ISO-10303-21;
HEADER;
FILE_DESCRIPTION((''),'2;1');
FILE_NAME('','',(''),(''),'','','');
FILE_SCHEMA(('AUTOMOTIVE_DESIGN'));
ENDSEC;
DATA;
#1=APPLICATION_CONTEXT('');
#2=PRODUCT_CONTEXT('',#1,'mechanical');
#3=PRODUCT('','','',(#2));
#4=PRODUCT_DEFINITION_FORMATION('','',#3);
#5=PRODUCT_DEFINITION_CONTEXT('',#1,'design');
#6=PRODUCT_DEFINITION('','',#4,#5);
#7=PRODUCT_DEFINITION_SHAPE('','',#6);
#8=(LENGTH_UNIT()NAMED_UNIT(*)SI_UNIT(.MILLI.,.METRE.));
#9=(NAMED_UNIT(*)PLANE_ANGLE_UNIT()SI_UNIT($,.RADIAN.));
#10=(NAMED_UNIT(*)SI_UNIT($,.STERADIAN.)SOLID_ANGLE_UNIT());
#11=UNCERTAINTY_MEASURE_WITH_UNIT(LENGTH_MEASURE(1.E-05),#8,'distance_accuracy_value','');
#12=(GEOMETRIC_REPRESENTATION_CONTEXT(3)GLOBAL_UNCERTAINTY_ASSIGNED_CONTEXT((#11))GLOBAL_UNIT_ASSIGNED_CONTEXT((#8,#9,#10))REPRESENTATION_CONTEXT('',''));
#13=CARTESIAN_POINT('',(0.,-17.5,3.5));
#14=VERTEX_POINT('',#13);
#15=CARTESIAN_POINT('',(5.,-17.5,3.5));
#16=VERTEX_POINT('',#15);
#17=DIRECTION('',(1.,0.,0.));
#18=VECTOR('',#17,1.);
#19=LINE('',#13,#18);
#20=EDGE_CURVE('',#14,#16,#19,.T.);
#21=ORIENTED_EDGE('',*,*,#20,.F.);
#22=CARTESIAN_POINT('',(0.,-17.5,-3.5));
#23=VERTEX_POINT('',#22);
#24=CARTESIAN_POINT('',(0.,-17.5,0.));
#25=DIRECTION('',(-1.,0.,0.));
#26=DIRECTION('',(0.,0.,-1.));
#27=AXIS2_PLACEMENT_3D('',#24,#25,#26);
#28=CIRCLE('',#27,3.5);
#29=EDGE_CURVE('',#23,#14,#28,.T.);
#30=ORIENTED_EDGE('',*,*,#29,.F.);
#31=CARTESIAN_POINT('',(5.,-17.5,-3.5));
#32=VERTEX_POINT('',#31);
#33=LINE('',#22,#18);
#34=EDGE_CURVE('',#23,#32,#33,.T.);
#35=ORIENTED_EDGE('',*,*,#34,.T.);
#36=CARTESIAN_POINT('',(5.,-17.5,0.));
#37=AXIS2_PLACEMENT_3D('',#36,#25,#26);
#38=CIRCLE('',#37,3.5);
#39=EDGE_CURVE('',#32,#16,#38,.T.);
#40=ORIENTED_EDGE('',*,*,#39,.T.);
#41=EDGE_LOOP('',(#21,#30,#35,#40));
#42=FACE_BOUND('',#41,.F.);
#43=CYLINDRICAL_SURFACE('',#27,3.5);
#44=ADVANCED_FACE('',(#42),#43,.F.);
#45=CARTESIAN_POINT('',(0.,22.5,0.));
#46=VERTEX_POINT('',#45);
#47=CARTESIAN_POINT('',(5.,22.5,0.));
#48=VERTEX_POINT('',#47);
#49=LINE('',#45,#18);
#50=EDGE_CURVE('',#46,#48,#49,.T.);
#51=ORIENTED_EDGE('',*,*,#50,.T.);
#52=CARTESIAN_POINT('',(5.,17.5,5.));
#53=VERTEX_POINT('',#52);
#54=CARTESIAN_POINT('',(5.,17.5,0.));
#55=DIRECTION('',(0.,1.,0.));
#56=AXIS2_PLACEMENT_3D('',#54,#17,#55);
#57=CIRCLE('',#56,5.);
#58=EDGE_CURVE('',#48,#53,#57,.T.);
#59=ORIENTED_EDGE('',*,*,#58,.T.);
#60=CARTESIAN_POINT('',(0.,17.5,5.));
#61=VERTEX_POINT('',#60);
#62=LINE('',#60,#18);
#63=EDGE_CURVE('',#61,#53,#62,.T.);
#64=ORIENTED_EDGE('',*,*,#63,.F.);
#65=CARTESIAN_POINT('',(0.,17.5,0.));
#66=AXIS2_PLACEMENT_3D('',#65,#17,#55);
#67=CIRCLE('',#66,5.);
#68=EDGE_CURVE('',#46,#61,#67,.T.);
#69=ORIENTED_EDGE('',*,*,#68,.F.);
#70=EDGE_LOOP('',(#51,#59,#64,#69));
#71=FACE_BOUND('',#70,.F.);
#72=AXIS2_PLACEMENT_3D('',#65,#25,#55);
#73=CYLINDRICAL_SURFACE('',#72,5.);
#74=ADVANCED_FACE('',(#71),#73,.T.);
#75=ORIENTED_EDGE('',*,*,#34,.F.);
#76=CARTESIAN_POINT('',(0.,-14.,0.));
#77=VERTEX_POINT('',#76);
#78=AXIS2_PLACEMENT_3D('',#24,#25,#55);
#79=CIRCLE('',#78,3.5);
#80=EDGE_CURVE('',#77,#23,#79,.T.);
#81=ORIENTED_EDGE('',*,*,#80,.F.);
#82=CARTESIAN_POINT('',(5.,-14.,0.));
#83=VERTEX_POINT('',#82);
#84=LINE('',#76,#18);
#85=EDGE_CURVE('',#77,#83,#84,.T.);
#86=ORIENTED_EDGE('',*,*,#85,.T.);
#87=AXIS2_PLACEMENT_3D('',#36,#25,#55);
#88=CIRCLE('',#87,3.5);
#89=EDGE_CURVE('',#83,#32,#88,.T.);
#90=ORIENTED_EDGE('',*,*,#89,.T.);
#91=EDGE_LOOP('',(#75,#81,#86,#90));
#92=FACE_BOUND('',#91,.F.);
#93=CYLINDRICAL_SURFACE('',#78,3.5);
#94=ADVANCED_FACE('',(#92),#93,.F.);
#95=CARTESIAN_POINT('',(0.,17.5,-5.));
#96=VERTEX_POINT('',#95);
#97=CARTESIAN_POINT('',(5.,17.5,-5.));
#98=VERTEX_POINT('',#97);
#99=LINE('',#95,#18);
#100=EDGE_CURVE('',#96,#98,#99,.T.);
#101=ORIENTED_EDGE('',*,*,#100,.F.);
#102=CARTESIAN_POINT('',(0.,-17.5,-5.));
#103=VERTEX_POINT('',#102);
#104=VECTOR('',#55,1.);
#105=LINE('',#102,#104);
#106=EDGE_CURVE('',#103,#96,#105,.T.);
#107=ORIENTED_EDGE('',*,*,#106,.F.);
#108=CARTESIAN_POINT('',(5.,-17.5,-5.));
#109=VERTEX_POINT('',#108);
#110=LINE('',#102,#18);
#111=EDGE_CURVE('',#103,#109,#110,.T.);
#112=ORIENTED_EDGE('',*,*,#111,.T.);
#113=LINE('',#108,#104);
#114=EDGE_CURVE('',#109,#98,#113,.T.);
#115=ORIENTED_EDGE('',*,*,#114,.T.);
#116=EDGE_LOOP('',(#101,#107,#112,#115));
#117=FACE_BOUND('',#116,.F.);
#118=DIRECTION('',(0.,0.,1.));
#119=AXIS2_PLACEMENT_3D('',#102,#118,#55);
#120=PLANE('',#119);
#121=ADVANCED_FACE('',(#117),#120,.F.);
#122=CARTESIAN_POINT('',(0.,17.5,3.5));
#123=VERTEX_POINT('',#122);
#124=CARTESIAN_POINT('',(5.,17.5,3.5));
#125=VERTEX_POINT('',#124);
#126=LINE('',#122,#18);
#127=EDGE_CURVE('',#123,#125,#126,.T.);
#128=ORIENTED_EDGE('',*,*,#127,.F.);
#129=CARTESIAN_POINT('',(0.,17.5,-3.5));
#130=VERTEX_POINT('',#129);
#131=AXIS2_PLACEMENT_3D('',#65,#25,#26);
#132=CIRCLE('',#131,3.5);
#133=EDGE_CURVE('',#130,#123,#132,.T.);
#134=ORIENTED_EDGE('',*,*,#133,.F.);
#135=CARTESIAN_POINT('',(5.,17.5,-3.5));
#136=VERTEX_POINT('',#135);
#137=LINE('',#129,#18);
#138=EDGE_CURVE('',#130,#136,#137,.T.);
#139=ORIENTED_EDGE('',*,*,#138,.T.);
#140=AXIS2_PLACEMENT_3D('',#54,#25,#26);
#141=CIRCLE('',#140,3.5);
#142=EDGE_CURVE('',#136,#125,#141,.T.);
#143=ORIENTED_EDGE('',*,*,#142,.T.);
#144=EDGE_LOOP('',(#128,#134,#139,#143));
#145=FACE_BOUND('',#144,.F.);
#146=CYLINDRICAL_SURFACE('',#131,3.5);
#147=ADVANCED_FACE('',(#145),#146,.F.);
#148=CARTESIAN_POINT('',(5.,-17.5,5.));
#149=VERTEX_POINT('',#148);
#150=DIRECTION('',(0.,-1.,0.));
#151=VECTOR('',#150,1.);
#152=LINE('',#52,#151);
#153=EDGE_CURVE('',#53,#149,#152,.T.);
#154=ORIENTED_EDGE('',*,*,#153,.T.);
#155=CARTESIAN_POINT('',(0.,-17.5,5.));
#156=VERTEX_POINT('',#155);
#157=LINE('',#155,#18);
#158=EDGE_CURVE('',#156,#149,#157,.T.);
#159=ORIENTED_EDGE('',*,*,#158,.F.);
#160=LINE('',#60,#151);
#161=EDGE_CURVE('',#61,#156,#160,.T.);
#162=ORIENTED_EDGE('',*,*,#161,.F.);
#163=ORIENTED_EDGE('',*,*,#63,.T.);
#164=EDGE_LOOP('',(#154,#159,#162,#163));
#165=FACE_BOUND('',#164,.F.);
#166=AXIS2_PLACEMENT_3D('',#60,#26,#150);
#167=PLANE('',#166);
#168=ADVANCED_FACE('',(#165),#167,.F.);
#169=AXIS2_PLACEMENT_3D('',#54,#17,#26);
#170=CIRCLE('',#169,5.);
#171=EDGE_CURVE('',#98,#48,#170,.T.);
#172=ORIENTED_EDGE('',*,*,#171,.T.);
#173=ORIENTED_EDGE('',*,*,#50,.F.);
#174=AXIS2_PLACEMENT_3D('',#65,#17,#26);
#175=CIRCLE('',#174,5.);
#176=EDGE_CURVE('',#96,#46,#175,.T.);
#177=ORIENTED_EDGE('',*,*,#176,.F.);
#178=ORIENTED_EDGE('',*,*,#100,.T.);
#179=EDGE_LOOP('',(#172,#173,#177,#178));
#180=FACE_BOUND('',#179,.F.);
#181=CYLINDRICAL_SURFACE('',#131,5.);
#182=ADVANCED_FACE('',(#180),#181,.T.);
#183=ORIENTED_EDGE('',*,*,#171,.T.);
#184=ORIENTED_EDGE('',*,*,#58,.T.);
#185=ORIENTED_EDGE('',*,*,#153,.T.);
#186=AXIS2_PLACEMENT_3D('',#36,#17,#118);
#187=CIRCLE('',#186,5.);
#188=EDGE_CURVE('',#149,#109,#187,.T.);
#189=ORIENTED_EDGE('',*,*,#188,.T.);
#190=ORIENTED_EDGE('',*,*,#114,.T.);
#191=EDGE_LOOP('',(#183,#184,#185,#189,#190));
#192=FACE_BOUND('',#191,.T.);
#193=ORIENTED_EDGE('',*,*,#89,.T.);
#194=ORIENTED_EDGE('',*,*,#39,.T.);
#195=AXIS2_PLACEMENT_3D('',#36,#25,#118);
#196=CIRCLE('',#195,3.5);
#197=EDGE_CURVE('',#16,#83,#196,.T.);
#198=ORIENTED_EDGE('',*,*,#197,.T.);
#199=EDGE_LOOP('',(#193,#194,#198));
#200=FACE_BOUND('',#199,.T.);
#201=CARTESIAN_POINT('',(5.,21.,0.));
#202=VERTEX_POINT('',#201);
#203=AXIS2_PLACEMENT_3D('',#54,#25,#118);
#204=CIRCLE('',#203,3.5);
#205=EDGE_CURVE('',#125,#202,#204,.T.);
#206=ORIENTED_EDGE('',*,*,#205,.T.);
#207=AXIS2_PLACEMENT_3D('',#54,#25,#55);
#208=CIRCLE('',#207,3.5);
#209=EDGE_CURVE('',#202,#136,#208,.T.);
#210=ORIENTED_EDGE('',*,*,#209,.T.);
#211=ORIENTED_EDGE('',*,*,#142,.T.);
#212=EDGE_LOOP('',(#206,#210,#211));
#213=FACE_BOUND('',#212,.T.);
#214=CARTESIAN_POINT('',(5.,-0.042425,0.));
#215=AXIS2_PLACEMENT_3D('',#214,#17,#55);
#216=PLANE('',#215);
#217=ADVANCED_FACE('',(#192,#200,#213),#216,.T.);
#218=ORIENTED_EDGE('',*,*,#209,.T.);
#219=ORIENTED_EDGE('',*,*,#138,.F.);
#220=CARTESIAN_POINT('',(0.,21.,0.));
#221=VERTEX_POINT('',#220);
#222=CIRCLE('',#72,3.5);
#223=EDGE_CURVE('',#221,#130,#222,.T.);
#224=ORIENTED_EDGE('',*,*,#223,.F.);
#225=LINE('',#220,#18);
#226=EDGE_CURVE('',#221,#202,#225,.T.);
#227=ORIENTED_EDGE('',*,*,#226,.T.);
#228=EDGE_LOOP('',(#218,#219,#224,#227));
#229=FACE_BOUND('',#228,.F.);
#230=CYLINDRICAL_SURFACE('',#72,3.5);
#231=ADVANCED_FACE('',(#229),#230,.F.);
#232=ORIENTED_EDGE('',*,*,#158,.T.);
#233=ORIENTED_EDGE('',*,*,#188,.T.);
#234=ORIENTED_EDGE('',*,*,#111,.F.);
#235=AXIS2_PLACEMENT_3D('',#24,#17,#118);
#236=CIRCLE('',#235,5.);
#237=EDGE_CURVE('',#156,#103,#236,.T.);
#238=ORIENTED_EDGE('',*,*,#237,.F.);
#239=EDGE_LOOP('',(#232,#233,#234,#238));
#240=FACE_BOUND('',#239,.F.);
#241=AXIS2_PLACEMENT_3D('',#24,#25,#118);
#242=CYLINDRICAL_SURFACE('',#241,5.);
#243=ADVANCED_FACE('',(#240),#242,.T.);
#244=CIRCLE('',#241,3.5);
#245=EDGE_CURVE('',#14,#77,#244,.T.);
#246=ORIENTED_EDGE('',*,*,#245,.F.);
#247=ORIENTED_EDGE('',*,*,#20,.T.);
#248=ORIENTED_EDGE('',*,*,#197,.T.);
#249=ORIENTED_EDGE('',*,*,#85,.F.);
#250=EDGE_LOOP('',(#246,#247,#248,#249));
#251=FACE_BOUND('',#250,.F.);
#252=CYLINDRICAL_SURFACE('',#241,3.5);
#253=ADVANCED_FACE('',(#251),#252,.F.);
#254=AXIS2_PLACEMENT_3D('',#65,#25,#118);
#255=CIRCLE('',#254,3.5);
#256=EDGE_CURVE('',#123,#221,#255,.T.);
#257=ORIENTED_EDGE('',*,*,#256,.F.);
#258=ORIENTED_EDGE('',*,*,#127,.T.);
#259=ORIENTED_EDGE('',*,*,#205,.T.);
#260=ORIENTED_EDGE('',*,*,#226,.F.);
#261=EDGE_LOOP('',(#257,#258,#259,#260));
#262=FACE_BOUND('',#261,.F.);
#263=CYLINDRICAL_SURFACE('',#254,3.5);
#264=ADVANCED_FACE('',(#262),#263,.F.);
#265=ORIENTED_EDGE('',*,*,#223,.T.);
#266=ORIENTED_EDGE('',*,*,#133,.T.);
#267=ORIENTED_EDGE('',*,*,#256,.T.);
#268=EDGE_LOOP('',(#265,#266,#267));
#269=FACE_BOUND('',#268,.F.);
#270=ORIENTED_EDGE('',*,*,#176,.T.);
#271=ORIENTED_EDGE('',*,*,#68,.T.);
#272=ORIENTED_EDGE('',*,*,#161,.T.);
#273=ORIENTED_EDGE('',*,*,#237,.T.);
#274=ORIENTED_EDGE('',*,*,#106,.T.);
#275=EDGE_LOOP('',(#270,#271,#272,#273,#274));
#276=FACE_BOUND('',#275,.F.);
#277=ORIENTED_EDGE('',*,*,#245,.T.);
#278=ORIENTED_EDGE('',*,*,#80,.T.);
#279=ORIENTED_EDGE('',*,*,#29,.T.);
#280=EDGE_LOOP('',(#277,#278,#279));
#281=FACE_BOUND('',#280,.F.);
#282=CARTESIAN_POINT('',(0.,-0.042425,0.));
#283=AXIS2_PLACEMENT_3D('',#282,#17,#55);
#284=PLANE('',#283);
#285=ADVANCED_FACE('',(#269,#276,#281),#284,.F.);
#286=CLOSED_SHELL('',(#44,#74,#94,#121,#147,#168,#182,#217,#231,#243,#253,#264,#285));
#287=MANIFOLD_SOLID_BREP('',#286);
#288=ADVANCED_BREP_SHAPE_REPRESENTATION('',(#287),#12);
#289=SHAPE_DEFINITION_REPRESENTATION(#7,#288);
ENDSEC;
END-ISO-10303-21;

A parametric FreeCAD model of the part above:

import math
import FreeCAD as App
import Part
import Sketcher

doc = App.newDocument("Part")
body = doc.addObject("PartDesign::Body", "Body")

# Sketch on YZ plane
sketch1 = body.newObject("Sketcher::SketchObject", "Sketch")
sketch1.AttachmentSupport = (doc.getObject("YZ_Plane"), [""])
sketch1.MapMode = "FlatFace"
sketch1.addGeometry([
    Part.LineSegment(App.Vector(17.5, 5, 0), App.Vector(-17.5, 5, 0)),  # 0
    Part.ArcOfCircle(Part.Circle(App.Vector(-17.5, 0, 0), App.Vector(0, 0, 1), 5), math.radians(90), math.radians(270)),  # 1
    Part.LineSegment(App.Vector(-17.5, -5, 0), App.Vector(17.5, -5, 0)),  # 2
    Part.ArcOfCircle(Part.Circle(App.Vector(17.5, 0, 0), App.Vector(0, 0, 1), 5), math.radians(-90), math.radians(0)),  # 3
    Part.ArcOfCircle(Part.Circle(App.Vector(17.5, 0, 0), App.Vector(0, 0, 1), 5), math.radians(0), math.radians(90)),  # 4
    Part.ArcOfCircle(Part.Circle(App.Vector(-17.5, 0, 0), App.Vector(0, 0, 1), 3.5), math.radians(0), math.radians(90)),  # 5
    Part.ArcOfCircle(Part.Circle(App.Vector(-17.5, 0, 0), App.Vector(0, 0, 1), 3.5), math.radians(-90), math.radians(0)),  # 6
    Part.ArcOfCircle(Part.Circle(App.Vector(-17.5, 0, 0), App.Vector(0, 0, 1), 3.5), math.radians(90), math.radians(270)),  # 7
    Part.ArcOfCircle(Part.Circle(App.Vector(17.5, 0, 0), App.Vector(0, 0, 1), 3.5), math.radians(90), math.radians(270)),  # 8
    Part.ArcOfCircle(Part.Circle(App.Vector(17.5, 0, 0), App.Vector(0, 0, 1), 3.5), math.radians(0), math.radians(90)),  # 9
    Part.ArcOfCircle(Part.Circle(App.Vector(17.5, 0, 0), App.Vector(0, 0, 1), 3.5), math.radians(-90), math.radians(0)),  # 10
], False)
sketch1.addConstraint([
    Sketcher.Constraint("Tangent", 0, 2, 1, 1),
    Sketcher.Constraint("Tangent", 1, 2, 2, 1),
    Sketcher.Constraint("Tangent", 2, 2, 3, 1),
    Sketcher.Constraint("Tangent", 3, 2, 4, 1),
    Sketcher.Constraint("Tangent", 4, 2, 0, 1),
    Sketcher.Constraint("Tangent", 5, 1, 6, 2),
    Sketcher.Constraint("Tangent", 6, 1, 7, 2),
    Sketcher.Constraint("Tangent", 7, 1, 5, 2),
    Sketcher.Constraint("Tangent", 8, 1, 9, 2),
    Sketcher.Constraint("Tangent", 9, 1, 10, 2),
    Sketcher.Constraint("Tangent", 10, 1, 8, 2),
    Sketcher.Constraint("Horizontal", 0),
    Sketcher.Constraint("Horizontal", 2),
    Sketcher.Constraint("Coincident", 5, 3, 1, 3),
    Sketcher.Constraint("Coincident", 8, 3, 3, 3),
    Sketcher.Constraint("Equal", 1, 3),
    Sketcher.Constraint("Equal", 7, 8),
    Sketcher.Constraint("Symmetric", 1, 3, 3, 3, -1, 1),
    Sketcher.Constraint("PointOnObject", 3, 2, -1),
    Sketcher.Constraint("PointOnObject", 5, 1, -1),
    Sketcher.Constraint("PointOnObject", 9, 1, -1),
    Sketcher.Constraint("Vertical", 1, 2, 6, 1),
    Sketcher.Constraint("Vertical", 6, 1, 7, 1),
    Sketcher.Constraint("Vertical", 4, 2, 8, 1),
    Sketcher.Constraint("Vertical", 8, 1, 10, 1),
    Sketcher.Constraint("Radius", 1, 5.0),
    Sketcher.Constraint("Radius", 5, 3.5),
    Sketcher.Constraint("DistanceX", 0, 2, 0, 1, 35.0),
])
pad1 = body.newObject("PartDesign::Pad", "Pad")
pad1.Profile = sketch1
pad1.Length = 5

doc.recompute()
